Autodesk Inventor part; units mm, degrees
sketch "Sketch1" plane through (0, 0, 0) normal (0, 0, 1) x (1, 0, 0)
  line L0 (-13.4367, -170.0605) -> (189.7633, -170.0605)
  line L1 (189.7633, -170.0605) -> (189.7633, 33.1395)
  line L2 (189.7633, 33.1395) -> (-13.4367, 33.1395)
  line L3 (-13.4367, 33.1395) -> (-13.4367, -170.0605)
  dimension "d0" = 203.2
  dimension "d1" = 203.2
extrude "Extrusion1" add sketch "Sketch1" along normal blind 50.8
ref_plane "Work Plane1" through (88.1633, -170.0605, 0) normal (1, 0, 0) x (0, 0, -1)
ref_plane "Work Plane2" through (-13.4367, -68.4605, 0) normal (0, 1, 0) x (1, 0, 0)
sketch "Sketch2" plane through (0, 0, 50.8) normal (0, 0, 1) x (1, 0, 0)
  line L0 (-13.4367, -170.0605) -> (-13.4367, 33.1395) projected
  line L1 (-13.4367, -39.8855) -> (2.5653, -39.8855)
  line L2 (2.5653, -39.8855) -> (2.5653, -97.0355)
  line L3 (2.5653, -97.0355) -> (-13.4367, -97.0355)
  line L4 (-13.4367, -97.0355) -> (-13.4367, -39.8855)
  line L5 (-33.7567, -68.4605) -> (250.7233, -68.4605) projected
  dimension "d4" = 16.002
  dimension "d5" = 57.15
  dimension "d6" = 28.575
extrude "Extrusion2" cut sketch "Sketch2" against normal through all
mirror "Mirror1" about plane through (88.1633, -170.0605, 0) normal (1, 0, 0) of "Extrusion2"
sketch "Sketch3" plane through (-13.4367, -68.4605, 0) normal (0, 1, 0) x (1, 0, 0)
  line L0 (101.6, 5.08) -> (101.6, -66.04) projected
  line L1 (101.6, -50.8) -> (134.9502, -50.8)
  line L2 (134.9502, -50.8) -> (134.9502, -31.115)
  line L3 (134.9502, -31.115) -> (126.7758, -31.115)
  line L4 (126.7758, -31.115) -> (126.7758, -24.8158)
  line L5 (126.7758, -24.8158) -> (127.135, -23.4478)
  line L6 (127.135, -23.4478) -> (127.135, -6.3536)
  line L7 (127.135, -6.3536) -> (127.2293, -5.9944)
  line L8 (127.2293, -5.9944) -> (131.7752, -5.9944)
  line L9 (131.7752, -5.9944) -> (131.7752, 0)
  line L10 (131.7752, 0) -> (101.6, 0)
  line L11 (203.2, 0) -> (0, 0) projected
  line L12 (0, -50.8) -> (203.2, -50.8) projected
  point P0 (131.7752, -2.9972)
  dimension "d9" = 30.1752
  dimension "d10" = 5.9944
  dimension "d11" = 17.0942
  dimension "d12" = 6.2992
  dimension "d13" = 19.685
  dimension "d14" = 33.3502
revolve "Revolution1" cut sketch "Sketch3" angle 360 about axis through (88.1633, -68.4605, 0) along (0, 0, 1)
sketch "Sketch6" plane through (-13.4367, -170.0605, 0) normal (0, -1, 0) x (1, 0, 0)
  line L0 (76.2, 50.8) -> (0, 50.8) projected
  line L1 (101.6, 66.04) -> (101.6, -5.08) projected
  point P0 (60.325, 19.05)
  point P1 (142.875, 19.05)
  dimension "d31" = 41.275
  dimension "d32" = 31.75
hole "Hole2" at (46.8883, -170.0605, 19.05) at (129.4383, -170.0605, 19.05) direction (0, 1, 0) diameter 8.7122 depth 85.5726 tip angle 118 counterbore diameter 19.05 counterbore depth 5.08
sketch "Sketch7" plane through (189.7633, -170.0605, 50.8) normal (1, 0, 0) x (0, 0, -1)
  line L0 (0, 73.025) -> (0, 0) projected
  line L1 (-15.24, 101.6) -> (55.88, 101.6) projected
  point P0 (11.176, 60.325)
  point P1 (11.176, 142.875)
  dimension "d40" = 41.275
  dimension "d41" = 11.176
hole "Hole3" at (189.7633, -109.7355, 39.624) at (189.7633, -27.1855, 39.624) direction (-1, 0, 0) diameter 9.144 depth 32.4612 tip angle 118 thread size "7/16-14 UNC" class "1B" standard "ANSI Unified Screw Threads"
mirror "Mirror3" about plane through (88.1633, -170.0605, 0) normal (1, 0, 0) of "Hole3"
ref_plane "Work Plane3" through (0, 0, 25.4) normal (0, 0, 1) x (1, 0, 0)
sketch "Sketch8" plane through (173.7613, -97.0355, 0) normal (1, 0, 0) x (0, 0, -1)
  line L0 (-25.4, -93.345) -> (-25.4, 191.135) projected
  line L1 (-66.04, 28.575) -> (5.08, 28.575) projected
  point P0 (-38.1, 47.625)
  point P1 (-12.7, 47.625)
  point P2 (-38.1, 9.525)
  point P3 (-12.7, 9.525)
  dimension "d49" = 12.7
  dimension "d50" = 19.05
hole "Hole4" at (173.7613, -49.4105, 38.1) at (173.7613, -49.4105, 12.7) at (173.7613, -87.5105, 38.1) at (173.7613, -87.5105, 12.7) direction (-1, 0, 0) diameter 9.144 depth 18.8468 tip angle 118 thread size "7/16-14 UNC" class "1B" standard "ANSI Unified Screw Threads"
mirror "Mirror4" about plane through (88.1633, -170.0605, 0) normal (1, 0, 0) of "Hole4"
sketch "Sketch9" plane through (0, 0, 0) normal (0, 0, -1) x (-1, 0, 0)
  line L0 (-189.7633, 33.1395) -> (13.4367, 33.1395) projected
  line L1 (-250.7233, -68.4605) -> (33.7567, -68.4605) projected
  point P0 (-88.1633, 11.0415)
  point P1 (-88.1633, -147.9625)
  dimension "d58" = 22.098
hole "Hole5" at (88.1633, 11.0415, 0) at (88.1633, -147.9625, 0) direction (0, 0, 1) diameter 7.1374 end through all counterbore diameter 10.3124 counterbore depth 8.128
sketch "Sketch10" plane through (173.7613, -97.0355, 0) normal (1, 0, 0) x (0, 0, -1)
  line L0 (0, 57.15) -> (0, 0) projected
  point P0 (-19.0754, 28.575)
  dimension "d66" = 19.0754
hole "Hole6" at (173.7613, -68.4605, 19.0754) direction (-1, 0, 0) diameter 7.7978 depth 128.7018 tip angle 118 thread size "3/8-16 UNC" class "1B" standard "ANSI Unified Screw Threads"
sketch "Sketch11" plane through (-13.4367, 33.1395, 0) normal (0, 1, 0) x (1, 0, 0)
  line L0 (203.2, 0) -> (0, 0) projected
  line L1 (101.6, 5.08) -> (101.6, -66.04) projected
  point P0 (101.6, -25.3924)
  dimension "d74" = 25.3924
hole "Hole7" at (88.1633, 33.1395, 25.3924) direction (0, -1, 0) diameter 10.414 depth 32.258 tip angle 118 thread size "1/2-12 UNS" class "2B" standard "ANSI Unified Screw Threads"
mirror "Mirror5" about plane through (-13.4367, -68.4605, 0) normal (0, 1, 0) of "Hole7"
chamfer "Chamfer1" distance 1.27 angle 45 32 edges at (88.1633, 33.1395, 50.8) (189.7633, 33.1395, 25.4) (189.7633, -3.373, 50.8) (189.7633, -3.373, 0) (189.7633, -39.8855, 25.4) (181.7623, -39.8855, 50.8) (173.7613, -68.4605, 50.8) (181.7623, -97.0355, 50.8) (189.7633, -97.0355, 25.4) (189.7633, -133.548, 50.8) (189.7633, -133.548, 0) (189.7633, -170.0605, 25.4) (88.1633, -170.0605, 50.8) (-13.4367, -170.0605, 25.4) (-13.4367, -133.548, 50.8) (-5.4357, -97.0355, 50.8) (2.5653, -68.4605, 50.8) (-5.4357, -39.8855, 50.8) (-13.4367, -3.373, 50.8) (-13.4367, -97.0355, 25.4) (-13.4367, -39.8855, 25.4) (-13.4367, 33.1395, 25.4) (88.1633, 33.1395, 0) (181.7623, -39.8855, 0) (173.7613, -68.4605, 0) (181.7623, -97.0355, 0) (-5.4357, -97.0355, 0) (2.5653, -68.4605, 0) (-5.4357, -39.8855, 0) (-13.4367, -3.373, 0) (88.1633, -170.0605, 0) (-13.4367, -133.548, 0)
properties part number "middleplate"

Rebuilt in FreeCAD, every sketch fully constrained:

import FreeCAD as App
import Part
import Sketcher
Q = App.Units.Quantity


def edges_at(feature, points):
    """Names of the edges that pass closest to the given points."""
    edges = feature.Shape.Edges
    near = lambda p: min(range(len(edges)), key=lambda i: edges[i].distToShape(Part.Vertex(*p))[0])
    return sorted({f"Edge{near(p) + 1}" for p in points})


def add_polygon(sketch, points):
    """Adds a closed chain of lines whose ends are joined by coincident constraints."""
    first, n = sketch.GeometryCount, len(points)
    for a, b in zip(points, points[1:] + points[:1]):
        sketch.addGeometry(Part.LineSegment(App.Vector(*a, 0), App.Vector(*b, 0)), False)
    for i in range(n):
        sketch.addConstraint(Sketcher.Constraint("Coincident", first + i, 2, first + (i + 1) % n, 1))

doc = App.newDocument("Part")
body = doc.addObject("PartDesign::Body", "Body")

# Sketch on XY plane
sketch1 = body.newObject("Sketcher::SketchObject", "Sketch")
sketch1.AttachmentSupport = (doc.getObject("XY_Plane"), [""])
sketch1.MapMode = "FlatFace"
add_polygon(sketch1, [(-13, 33), (-13, -170), (190, -170), (190, 33)])  # lines 0-3
sketch1.addConstraint([
    Sketcher.Constraint("Vertical", 0),
    Sketcher.Constraint("Horizontal", 1),
    Sketcher.Constraint("Vertical", 2),
    Sketcher.Constraint("Horizontal", 3),
    Sketcher.Constraint("Equal", 3, 0),
    Sketcher.Constraint("DistanceX", 1, 1, 1, 2, Q("8 in")),
    Sketcher.Constraint("DistanceX", 0, 2, -1, 1, Q("0.529 in")),
    Sketcher.Constraint("DistanceY", 0, 2, -1, 1, Q("6.6953 in")),
])
pad1 = body.newObject("PartDesign::Pad", "Pad")
pad1.Profile = sketch1
pad1.Length = Q("2 in")

# Sketch on XY plane
sketch2 = body.newObject("Sketcher::SketchObject", "Sketch001")
sketch2.AttachmentSupport = (doc.getObject("XY_Plane"), [""])
sketch2.MapMode = "FlatFace"
sketch2.AttachmentOffset = App.Placement(App.Vector(0, 0, 2 * 25.4), App.Rotation())
add_polygon(sketch2, [(-13, -97), (3, -97), (3, -40), (-13, -40)])  # lines 0-3
sketch2.addConstraint([
    Sketcher.Constraint("Horizontal", 0),
    Sketcher.Constraint("Vertical", 1),
    Sketcher.Constraint("Horizontal", 2),
    Sketcher.Constraint("Vertical", 3),
    Sketcher.Constraint("DistanceX", 0, 1, 0, 2, Q("0.63 in")),
    Sketcher.Constraint("DistanceY", 1, 1, 1, 2, Q("2.25 in")),
    Sketcher.Constraint("DistanceX", -1, 1, 0, 2, Q("0.101 in")),
    Sketcher.Constraint("DistanceY", 0, 2, -1, 1, Q("3.8203 in")),
])
pocket1 = body.newObject("PartDesign::Pocket", "Pocket")
pocket1.Profile = sketch2
pocket1.Type = "ThroughAll"
doc.recompute()

datumplane = body.newObject("PartDesign::Plane", "DatumPlane")
datumplane.AttachmentSupport = (doc.getObject("YZ_Plane"), [""])
datumplane.MapMode = "FlatFace"
datumplane.AttachmentOffset = App.Placement(App.Vector(0, 0, 3.4709961 * 25.4), App.Rotation())
mirrored = body.newObject("PartDesign::Mirrored", "Mirrored")
mirrored.Originals = [pocket1]
mirrored.MirrorPlane = (datumplane, [""])
body.Tip = mirrored

# Sketch on XZ plane
sketch3 = body.newObject("Sketcher::SketchObject", "Sketch002")
sketch3.AttachmentSupport = (doc.getObject("XZ_Plane"), [""])
sketch3.MapMode = "FlatFace"
sketch3.AttachmentOffset = App.Placement(App.Vector(0, 0, 2.6952953 * 25.4), App.Rotation())
add_polygon(sketch3, [(118.34, 0), (88.16, 0), (88.16, 50.8), (121.51, 50.8), (121.51, 31.11), (113.34, 31.11), (113.34, 24.82), (113.7, 23.45), (113.7, 6.35), (113.79, 5.99), (118.34, 5.99)])  # lines 0-10
sketch3.addGeometry(Part.LineSegment(App.Vector(88.16, 0, 0), App.Vector(88.16, 50.8, 0)), True)  # axis
sketch3.addConstraint([
    Sketcher.Constraint("Horizontal", 0),
    Sketcher.Constraint("Vertical", 1),
    Sketcher.Constraint("Horizontal", 2),
    Sketcher.Constraint("Vertical", 3),
    Sketcher.Constraint("Horizontal", 4),
    Sketcher.Constraint("Vertical", 5),
    Sketcher.Constraint("Vertical", 7),
    Sketcher.Constraint("Horizontal", 9),
    Sketcher.Constraint("Vertical", 10),
    Sketcher.Constraint("Vertical", 11),
    Sketcher.Constraint("Coincident", 11, 1, 0, 2),
    Sketcher.Constraint("PointOnObject", 0, 2, -1),
    Sketcher.Constraint("Parallel", 6, 8),
    Sketcher.Constraint("Horizontal", 2, 2, 11, 2),
    Sketcher.Constraint("DistanceX", 0, 2, 0, 1, Q("1.188 in")),
    Sketcher.Constraint("DistanceX", 2, 1, 2, 2, Q("1.313 in")),
    Sketcher.Constraint("DistanceY", 1, 1, 1, 2, Q("2 in")),
    Sketcher.Constraint("DistanceY", 3, 2, 3, 1, Q("0.775 in")),
    Sketcher.Constraint("DistanceY", 5, 2, 5, 1, Q("0.248 in")),
    Sketcher.Constraint("DistanceY", 7, 2, 7, 1, Q("0.673 in")),
    Sketcher.Constraint("DistanceY", 10, 2, 10, 1, Q("0.236 in")),
    Sketcher.Constraint("Angle", 8, Q("-75.2902 deg")),
    Sketcher.Constraint("DistanceX", -1, 1, 0, 2, Q("3.471 in")),
    Sketcher.Constraint("DistanceX", 4, 2, 4, 1, 8.1744),
    Sketcher.Constraint("DistanceX", -1, 1, 6, 2, Q("4.4763 in")),
])
groove = body.newObject("PartDesign::Groove", "Groove")
groove.Profile = sketch3
groove.ReferenceAxis = (sketch3, ["Axis0"])
groove.Angle = 360

# Sketch on XZ plane
sketch4 = body.newObject("Sketcher::SketchObject", "Sketch003")
sketch4.AttachmentSupport = (doc.getObject("XZ_Plane"), [""])
sketch4.MapMode = "FlatFace"
sketch4.AttachmentOffset = App.Placement(App.Vector(0, 0, 6.6952953 * 25.4), App.Rotation())
sketch4.addGeometry([
    Part.Circle(App.Vector(46.9, 19.1, 0), App.Vector(0, 0, 1), 4.4),
    Part.Circle(App.Vector(129.4, 19.1, 0), App.Vector(0, 0, 1), 4.4),
], False)
sketch4.addConstraint([
    Sketcher.Constraint("Equal", 0, 1),
    Sketcher.Constraint("Horizontal", 0, 3, 1, 3),
    Sketcher.Constraint("Diameter", 0, Q("0.343 in")),
    Sketcher.Constraint("DistanceY", -1, 1, 0, 3, Q("0.75 in")),
    Sketcher.Constraint("DistanceX", 0, 3, 1, 3, Q("3.25 in")),
    Sketcher.Constraint("DistanceX", -1, 1, 0, 3, Q("1.846 in")),
])
doc.recompute()
hole = body.newObject("PartDesign::Hole", "Hole")
hole.Profile = sketch4
hole.ThreadType = "None"
hole.Diameter = Q("0.343 in")
hole.DepthType = "Dimension"
hole.Depth = Q("3.369 in")
hole.DrillPoint = "Angled"
hole.DrillPointAngle = 118
hole.HoleCutType = "Counterbore"
hole.HoleCutDiameter = Q("0.75 in")
hole.HoleCutDepth = Q("0.2 in")

# Sketch on YZ plane
sketch5 = body.newObject("Sketcher::SketchObject", "Sketch004")
sketch5.AttachmentSupport = (doc.getObject("YZ_Plane"), [""])
sketch5.MapMode = "FlatFace"
sketch5.AttachmentOffset = App.Placement(App.Vector(0, 0, 7.4709961 * 25.4), App.Rotation())
sketch5.addGeometry([
    Part.Circle(App.Vector(-109.7, 39.6, 0), App.Vector(0, 0, 1), 4.6),
    Part.Circle(App.Vector(-27.2, 39.6, 0), App.Vector(0, 0, 1), 4.6),
], False)
sketch5.addConstraint([
    Sketcher.Constraint("Equal", 0, 1),
    Sketcher.Constraint("Horizontal", 0, 3, 1, 3),
    Sketcher.Constraint("Diameter", 0, Q("0.36 in")),
    Sketcher.Constraint("DistanceY", -1, 1, 0, 3, Q("1.56 in")),
    Sketcher.Constraint("DistanceX", 0, 3, 1, 3, Q("3.25 in")),
    Sketcher.Constraint("DistanceX", 0, 3, -1, 1, Q("4.3203 in")),
])
doc.recompute()
hole2 = body.newObject("PartDesign::Hole", "Hole001")
hole2.Profile = sketch5
hole2.ThreadType = "None"
hole2.Diameter = Q("0.36 in")
hole2.DepthType = "Dimension"
hole2.Depth = Q("1.278 in")
hole2.DrillPoint = "Angled"
hole2.DrillPointAngle = 118
doc.recompute()

datumplane2 = body.newObject("PartDesign::Plane", "DatumPlane001")
datumplane2.AttachmentSupport = (doc.getObject("YZ_Plane"), [""])
datumplane2.MapMode = "FlatFace"
datumplane2.AttachmentOffset = App.Placement(App.Vector(0, 0, 3.4709961 * 25.4), App.Rotation())
mirrored2 = body.newObject("PartDesign::Mirrored", "Mirrored001")
mirrored2.Originals = [hole2]
mirrored2.MirrorPlane = (datumplane2, [""])
body.Tip = mirrored2

# Sketch on YZ plane
sketch6 = body.newObject("Sketcher::SketchObject", "Sketch005")
sketch6.AttachmentSupport = (doc.getObject("YZ_Plane"), [""])
sketch6.MapMode = "FlatFace"
sketch6.AttachmentOffset = App.Placement(App.Vector(0, 0, 6.8409961 * 25.4), App.Rotation())
sketch6.addGeometry([
    Part.Circle(App.Vector(-49.4, 38.1, 0), App.Vector(0, 0, 1), 4.6),
    Part.Circle(App.Vector(-49.4, 12.7, 0), App.Vector(0, 0, 1), 4.6),
    Part.Circle(App.Vector(-87.5, 38.1, 0), App.Vector(0, 0, 1), 4.6),
    Part.Circle(App.Vector(-87.5, 12.7, 0), App.Vector(0, 0, 1), 4.6),
], False)
sketch6.addConstraint([
    Sketcher.Constraint("Equal", 0, 1),
    Sketcher.Constraint("Equal", 1, 2),
    Sketcher.Constraint("Equal", 2, 3),
    Sketcher.Constraint("Horizontal", 0, 3, 2, 3),
    Sketcher.Constraint("Horizontal", 1, 3, 3, 3),
    Sketcher.Constraint("Vertical", 0, 3, 1, 3),
    Sketcher.Constraint("Vertical", 2, 3, 3, 3),
    Sketcher.Constraint("Diameter", 0, Q("0.36 in")),
    Sketcher.Constraint("DistanceY", 1, 3, 0, 3, Q("1 in")),
    Sketcher.Constraint("DistanceY", -1, 1, 0, 3, Q("1.5 in")),
    Sketcher.Constraint("DistanceX", 2, 3, 0, 3, Q("1.5 in")),
    Sketcher.Constraint("DistanceX", 0, 3, -1, 1, Q("1.9453 in")),
])
doc.recompute()
hole3 = body.newObject("PartDesign::Hole", "Hole002")
hole3.Profile = sketch6
hole3.ThreadType = "None"
hole3.Diameter = Q("0.36 in")
hole3.DepthType = "Dimension"
hole3.Depth = Q("0.742 in")
hole3.DrillPoint = "Angled"
hole3.DrillPointAngle = 118
doc.recompute()

datumplane3 = body.newObject("PartDesign::Plane", "DatumPlane002")
datumplane3.AttachmentSupport = (doc.getObject("YZ_Plane"), [""])
datumplane3.MapMode = "FlatFace"
datumplane3.AttachmentOffset = App.Placement(App.Vector(0, 0, 3.4709961 * 25.4), App.Rotation())
mirrored3 = body.newObject("PartDesign::Mirrored", "Mirrored002")
mirrored3.Originals = [hole3]
mirrored3.MirrorPlane = (datumplane3, [""])
body.Tip = mirrored3

# Sketch on XY plane
sketch7 = body.newObject("Sketcher::SketchObject", "Sketch006")
sketch7.AttachmentSupport = (doc.getObject("XY_Plane"), [""])
sketch7.MapMode = "FlatFace"
sketch7.addGeometry([
    Part.Circle(App.Vector(88.2, 11, 0), App.Vector(0, 0, 1), 3.6),
    Part.Circle(App.Vector(88.2, -148, 0), App.Vector(0, 0, 1), 3.6),
], False)
sketch7.addConstraint([
    Sketcher.Constraint("Equal", 0, 1),
    Sketcher.Constraint("Vertical", 0, 3, 1, 3),
    Sketcher.Constraint("Diameter", 0, Q("0.281 in")),
    Sketcher.Constraint("DistanceY", 1, 3, 0, 3, Q("6.26 in")),
    Sketcher.Constraint("DistanceX", -1, 1, 0, 3, Q("3.471 in")),
    Sketcher.Constraint("DistanceY", -1, 1, 0, 3, Q("0.4347 in")),
])
doc.recompute()
hole4 = body.newObject("PartDesign::Hole", "Hole003")
hole4.Profile = sketch7
hole4.ThreadType = "None"
hole4.Diameter = Q("0.281 in")
hole4.DepthType = "ThroughAll"
hole4.HoleCutType = "Counterbore"
hole4.HoleCutDiameter = Q("0.406 in")
hole4.HoleCutDepth = Q("0.32 in")
hole4.Reversed = True

# Sketch on YZ plane
sketch8 = body.newObject("Sketcher::SketchObject", "Sketch007")
sketch8.AttachmentSupport = (doc.getObject("YZ_Plane"), [""])
sketch8.MapMode = "FlatFace"
sketch8.AttachmentOffset = App.Placement(App.Vector(0, 0, 6.8409961 * 25.4), App.Rotation())
sketch8.addGeometry(Part.Circle(App.Vector(-68.5, 19.1, 0), App.Vector(0, 0, 1), 3.9), False)
sketch8.addConstraint([
    Sketcher.Constraint("Diameter", 0, Q("0.307 in")),
    Sketcher.Constraint("DistanceY", -1, 1, 0, 3, Q("0.751 in")),
    Sketcher.Constraint("DistanceX", 0, 3, -1, 1, Q("2.6953 in")),
])
doc.recompute()
hole5 = body.newObject("PartDesign::Hole", "Hole004")
hole5.Profile = sketch8
hole5.ThreadType = "None"
hole5.Diameter = Q("0.307 in")
hole5.DepthType = "Dimension"
hole5.Depth = Q("5.067 in")
hole5.DrillPoint = "Angled"
hole5.DrillPointAngle = 118

# Sketch on XZ plane
sketch9 = body.newObject("Sketcher::SketchObject", "Sketch008")
sketch9.AttachmentSupport = (doc.getObject("XZ_Plane"), [""])
sketch9.MapMode = "FlatFace"
sketch9.AttachmentOffset = App.Placement(App.Vector(0, 0, -1.3047047 * 25.4), App.Rotation())
sketch9.addGeometry(Part.Circle(App.Vector(88, 25, 0), App.Vector(0, 0, 1), 5), False)
sketch9.addConstraint([
    Sketcher.Constraint("Diameter", 0, Q("0.41 in")),
    Sketcher.Constraint("DistanceX", -1, 1, 0, 3, Q("3.471 in")),
    Sketcher.Constraint("DistanceY", -1, 1, 0, 3, Q("0.9997 in")),
])
doc.recompute()
hole6 = body.newObject("PartDesign::Hole", "Hole005")
hole6.Profile = sketch9
hole6.ThreadType = "None"
hole6.Diameter = Q("0.41 in")
hole6.DepthType = "Dimension"
hole6.Depth = Q("1.27 in")
hole6.DrillPoint = "Angled"
hole6.DrillPointAngle = 118
hole6.Reversed = True
doc.recompute()

datumplane4 = body.newObject("PartDesign::Plane", "DatumPlane003")
datumplane4.AttachmentSupport = (doc.getObject("XZ_Plane"), [""])
datumplane4.MapMode = "FlatFace"
datumplane4.AttachmentOffset = App.Placement(App.Vector(0, 0, 2.6952953 * 25.4), App.Rotation())
mirrored4 = body.newObject("PartDesign::Mirrored", "Mirrored003")
mirrored4.Originals = [hole6]
mirrored4.MirrorPlane = (datumplane4, [""])
body.Tip = mirrored4
doc.recompute()

chamfer = body.newObject("PartDesign::Chamfer", "Chamfer")
chamfer.Base = (mirrored4, edges_at(mirrored4, [
    (88.163, 33.139, 50.8),
    (189.763, 33.139, 25.4),
    (189.763, -3.373, 50.8),
    (189.763, -3.373, 0),
    (189.763, -39.886, 25.4),
    (181.762, -39.886, 50.8),
    (173.761, -68.46, 50.8),
    (181.762, -97.035, 50.8),
    (189.763, -97.035, 25.4),
    (189.763, -133.548, 50.8),
    (189.763, -133.548, 0),
    (189.763, -170.06, 25.4),
    (88.163, -170.06, 50.8),
    (-13.437, -170.06, 25.4),
    (-13.437, -133.548, 50.8),
    (-5.436, -97.035, 50.8),
    (2.565, -68.46, 50.8),
    (-5.436, -39.886, 50.8),
    (-13.437, -3.373, 50.8),
    (-13.437, -97.035, 25.4),
    (-13.437, -39.886, 25.4),
    (-13.437, 33.139, 25.4),
    (88.163, 33.139, 0),
    (181.762, -39.886, 0),
    (173.761, -68.46, 0),
    (181.762, -97.035, 0),
    (-5.436, -97.035, 0),
    (2.565, -68.46, 0),
    (-5.436, -39.886, 0),
    (-13.437, -3.373, 0),
    (88.163, -170.06, 0),
    (-13.437, -133.548, 0),
]))
chamfer.Size = Q("0.05 in")

doc.recompute()
